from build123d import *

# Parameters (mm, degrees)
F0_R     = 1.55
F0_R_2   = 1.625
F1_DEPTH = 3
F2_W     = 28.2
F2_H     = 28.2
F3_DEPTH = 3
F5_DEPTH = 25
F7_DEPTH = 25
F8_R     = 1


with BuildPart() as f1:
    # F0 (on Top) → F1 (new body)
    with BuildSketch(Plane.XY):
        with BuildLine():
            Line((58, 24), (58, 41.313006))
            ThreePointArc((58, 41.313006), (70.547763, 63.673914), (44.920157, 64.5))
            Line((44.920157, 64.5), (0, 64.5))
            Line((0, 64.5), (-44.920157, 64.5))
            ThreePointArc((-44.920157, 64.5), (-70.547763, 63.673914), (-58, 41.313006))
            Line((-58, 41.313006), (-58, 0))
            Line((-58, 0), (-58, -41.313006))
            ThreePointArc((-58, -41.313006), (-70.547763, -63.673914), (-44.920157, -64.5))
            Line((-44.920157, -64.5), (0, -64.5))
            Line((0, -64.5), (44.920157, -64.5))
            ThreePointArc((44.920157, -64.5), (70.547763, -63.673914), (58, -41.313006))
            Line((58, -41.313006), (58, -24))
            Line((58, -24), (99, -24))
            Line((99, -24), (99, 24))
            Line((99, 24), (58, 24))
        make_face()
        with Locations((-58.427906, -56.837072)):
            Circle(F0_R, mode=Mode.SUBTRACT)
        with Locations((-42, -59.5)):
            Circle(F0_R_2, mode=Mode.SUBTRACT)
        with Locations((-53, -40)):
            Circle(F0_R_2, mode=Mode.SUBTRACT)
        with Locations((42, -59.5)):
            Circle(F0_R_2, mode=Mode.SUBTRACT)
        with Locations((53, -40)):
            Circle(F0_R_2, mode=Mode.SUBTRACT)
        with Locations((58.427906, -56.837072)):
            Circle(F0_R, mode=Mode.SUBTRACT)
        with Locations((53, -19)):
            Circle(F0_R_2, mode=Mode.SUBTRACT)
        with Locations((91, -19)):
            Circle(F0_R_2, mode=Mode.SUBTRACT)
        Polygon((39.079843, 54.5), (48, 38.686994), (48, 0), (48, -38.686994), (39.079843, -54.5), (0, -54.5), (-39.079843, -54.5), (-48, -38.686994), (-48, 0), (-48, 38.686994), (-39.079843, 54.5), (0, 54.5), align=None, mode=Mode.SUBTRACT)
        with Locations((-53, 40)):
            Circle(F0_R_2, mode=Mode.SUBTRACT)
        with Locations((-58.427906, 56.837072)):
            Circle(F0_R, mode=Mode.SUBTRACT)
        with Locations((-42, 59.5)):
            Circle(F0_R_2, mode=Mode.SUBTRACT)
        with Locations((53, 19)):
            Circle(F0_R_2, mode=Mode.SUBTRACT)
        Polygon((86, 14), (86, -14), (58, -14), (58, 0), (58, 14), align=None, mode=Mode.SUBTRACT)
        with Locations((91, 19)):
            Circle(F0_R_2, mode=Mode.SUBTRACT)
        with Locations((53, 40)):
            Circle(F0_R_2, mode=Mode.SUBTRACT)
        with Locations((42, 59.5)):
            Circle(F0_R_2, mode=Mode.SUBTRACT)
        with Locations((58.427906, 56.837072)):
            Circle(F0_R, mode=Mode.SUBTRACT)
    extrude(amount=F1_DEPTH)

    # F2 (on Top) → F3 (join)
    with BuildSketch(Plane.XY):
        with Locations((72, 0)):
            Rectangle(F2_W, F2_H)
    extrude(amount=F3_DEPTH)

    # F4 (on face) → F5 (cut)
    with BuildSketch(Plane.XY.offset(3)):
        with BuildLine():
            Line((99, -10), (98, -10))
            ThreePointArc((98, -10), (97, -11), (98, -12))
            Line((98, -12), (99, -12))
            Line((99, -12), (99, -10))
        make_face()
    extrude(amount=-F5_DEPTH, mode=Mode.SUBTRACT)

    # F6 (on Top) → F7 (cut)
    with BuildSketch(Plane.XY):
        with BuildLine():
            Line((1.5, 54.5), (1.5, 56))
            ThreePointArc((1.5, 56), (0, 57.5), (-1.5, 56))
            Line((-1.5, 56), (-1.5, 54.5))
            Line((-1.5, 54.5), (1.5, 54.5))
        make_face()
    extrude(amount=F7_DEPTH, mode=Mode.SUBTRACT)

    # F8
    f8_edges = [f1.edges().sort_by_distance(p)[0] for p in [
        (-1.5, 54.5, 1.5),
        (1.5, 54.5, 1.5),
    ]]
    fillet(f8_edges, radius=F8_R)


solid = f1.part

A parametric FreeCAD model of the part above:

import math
import FreeCAD as App
import Part
import Sketcher


def edges_at(feature, points):
    """Names of the edges that pass closest to the given points."""
    edges = feature.Shape.Edges
    near = lambda p: min(range(len(edges)), key=lambda i: edges[i].distToShape(Part.Vertex(*p))[0])
    return sorted({f"Edge{near(p) + 1}" for p in points})


def add_polygon(sketch, points):
    """Adds a closed chain of lines whose ends are joined by coincident constraints."""
    first, n = sketch.GeometryCount, len(points)
    for a, b in zip(points, points[1:] + points[:1]):
        sketch.addGeometry(Part.LineSegment(App.Vector(*a, 0), App.Vector(*b, 0)), False)
    for i in range(n):
        sketch.addConstraint(Sketcher.Constraint("Coincident", first + i, 2, first + (i + 1) % n, 1))

doc = App.newDocument("Part")
body = doc.addObject("PartDesign::Body", "Body")

# Sketch on XY plane
sketch1 = body.newObject("Sketcher::SketchObject", "Sketch")
sketch1.AttachmentSupport = (doc.getObject("XY_Plane"), [""])
sketch1.MapMode = "FlatFace"
sketch1.addGeometry(Part.LineSegment(App.Vector(58, 24, 0), App.Vector(58, 41.3, 0)), False)  # 0
sketch1.addGeometry(Part.ArcOfCircle(Part.Circle(App.Vector(57.5, 56.3, 0), App.Vector(0, 0, 1), 15), math.radians(-88), math.radians(147)), False)  # 1
sketch1.addGeometry(Part.LineSegment(App.Vector(44.9, 64.5, 0), App.Vector(-44.9, 64.5, 0)), False)  # 2
sketch1.addGeometry(Part.ArcOfCircle(Part.Circle(App.Vector(-57.5, 56.3, 0), App.Vector(0, 0, 1), 15), math.radians(33), math.radians(268)), False)  # 3
sketch1.addGeometry(Part.LineSegment(App.Vector(-58, 41.3, 0), App.Vector(-58, -41.3, 0)), False)  # 4
sketch1.addGeometry(Part.ArcOfCircle(Part.Circle(App.Vector(-57.5, -56.3, 0), App.Vector(0, 0, 1), 15), math.radians(92), math.radians(327)), False)  # 5
sketch1.addGeometry(Part.LineSegment(App.Vector(-44.9, -64.5, 0), App.Vector(44.9, -64.5, 0)), False)  # 6
sketch1.addGeometry(Part.ArcOfCircle(Part.Circle(App.Vector(57.5, -56.3, 0), App.Vector(0, 0, 1), 15), math.radians(-147), math.radians(88)), False)  # 7
sketch1.addGeometry(Part.LineSegment(App.Vector(58, -41.3, 0), App.Vector(58, -24, 0)), False)  # 8
sketch1.addGeometry(Part.LineSegment(App.Vector(58, -24, 0), App.Vector(99, -24, 0)), False)  # 9
sketch1.addGeometry(Part.LineSegment(App.Vector(99, -24, 0), App.Vector(99, 24, 0)), False)  # 10
sketch1.addGeometry(Part.LineSegment(App.Vector(99, 24, 0), App.Vector(58, 24, 0)), False)  # 11
sketch1.addGeometry(Part.Circle(App.Vector(-58.4, -56.8, 0), App.Vector(0, 0, 1), 1.6), False)  # 12
sketch1.addGeometry(Part.Circle(App.Vector(-42, -59.5, 0), App.Vector(0, 0, 1), 1.6), False)  # 13
sketch1.addGeometry(Part.Circle(App.Vector(-53, -40, 0), App.Vector(0, 0, 1), 1.6), False)  # 14
sketch1.addGeometry(Part.Circle(App.Vector(42, -59.5, 0), App.Vector(0, 0, 1), 1.6), False)  # 15
sketch1.addGeometry(Part.Circle(App.Vector(53, -40, 0), App.Vector(0, 0, 1), 1.6), False)  # 16
sketch1.addGeometry(Part.Circle(App.Vector(58.4, -56.8, 0), App.Vector(0, 0, 1), 1.6), False)  # 17
sketch1.addGeometry(Part.Circle(App.Vector(53, -19, 0), App.Vector(0, 0, 1), 1.6), False)  # 18
sketch1.addGeometry(Part.Circle(App.Vector(91, -19, 0), App.Vector(0, 0, 1), 1.6), False)  # 19
add_polygon(sketch1, [(-39.1, 54.5), (39.1, 54.5), (48, 38.7), (48, -38.7), (39.1, -54.5), (-39.1, -54.5), (-48, -38.7), (-48, 38.7)])  # lines 20-27
sketch1.addGeometry(Part.Circle(App.Vector(-53, 40, 0), App.Vector(0, 0, 1), 1.6), False)  # 28
sketch1.addGeometry(Part.Circle(App.Vector(-58.4, 56.8, 0), App.Vector(0, 0, 1), 1.6), False)  # 29
sketch1.addGeometry(Part.Circle(App.Vector(-42, 59.5, 0), App.Vector(0, 0, 1), 1.6), False)  # 30
sketch1.addGeometry(Part.Circle(App.Vector(53, 19, 0), App.Vector(0, 0, 1), 1.6), False)  # 31
add_polygon(sketch1, [(58, 14), (86, 14), (86, -14), (58, -14)])  # lines 32-35
sketch1.addGeometry(Part.Circle(App.Vector(91, 19, 0), App.Vector(0, 0, 1), 1.6), False)  # 36
sketch1.addGeometry(Part.Circle(App.Vector(53, 40, 0), App.Vector(0, 0, 1), 1.6), False)  # 37
sketch1.addGeometry(Part.Circle(App.Vector(42, 59.5, 0), App.Vector(0, 0, 1), 1.6), False)  # 38
sketch1.addGeometry(Part.Circle(App.Vector(58.4, 56.8, 0), App.Vector(0, 0, 1), 1.6), False)  # 39
sketch1.addConstraint([
    Sketcher.Constraint("Coincident", 0, 2, 1, 1),
    Sketcher.Constraint("Coincident", 1, 2, 2, 1),
    Sketcher.Constraint("Coincident", 2, 2, 3, 1),
    Sketcher.Constraint("Coincident", 3, 2, 4, 1),
    Sketcher.Constraint("Coincident", 4, 2, 5, 1),
    Sketcher.Constraint("Coincident", 5, 2, 6, 1),
    Sketcher.Constraint("Coincident", 6, 2, 7, 1),
    Sketcher.Constraint("Coincident", 7, 2, 8, 1),
    Sketcher.Constraint("Coincident", 8, 2, 9, 1),
    Sketcher.Constraint("Coincident", 9, 2, 10, 1),
    Sketcher.Constraint("Coincident", 10, 2, 11, 1),
    Sketcher.Constraint("Coincident", 11, 2, 0, 1),
    Sketcher.Constraint("Vertical", 0),
    Sketcher.Constraint("Horizontal", 2),
    Sketcher.Constraint("Vertical", 4),
    Sketcher.Constraint("Horizontal", 6),
    Sketcher.Constraint("Vertical", 8),
    Sketcher.Constraint("Horizontal", 9),
    Sketcher.Constraint("Vertical", 10),
    Sketcher.Constraint("Horizontal", 11),
    Sketcher.Constraint("Horizontal", 20),
    Sketcher.Constraint("Vertical", 22),
    Sketcher.Constraint("Horizontal", 24),
    Sketcher.Constraint("Vertical", 26),
    Sketcher.Constraint("Horizontal", 32),
    Sketcher.Constraint("Vertical", 33),
    Sketcher.Constraint("Horizontal", 34),
    Sketcher.Constraint("Vertical", 35),
    Sketcher.Constraint("Equal", 1, 3),
    Sketcher.Constraint("Equal", 3, 5),
    Sketcher.Constraint("Equal", 5, 7),
    Sketcher.Constraint("Equal", 13, 14),
    Sketcher.Constraint("Equal", 14, 15),
    Sketcher.Constraint("Equal", 15, 16),
    Sketcher.Constraint("Equal", 12, 17),
    Sketcher.Constraint("Equal", 16, 18),
    Sketcher.Constraint("Equal", 18, 19),
    Sketcher.Constraint("Equal", 19, 28),
    Sketcher.Constraint("Equal", 17, 29),
    Sketcher.Constraint("Equal", 28, 30),
    Sketcher.Constraint("Equal", 30, 31),
    Sketcher.Constraint("Equal", 31, 36),
    Sketcher.Constraint("Equal", 36, 37),
    Sketcher.Constraint("Equal", 37, 38),
    Sketcher.Constraint("Equal", 29, 39),
    Sketcher.Constraint("Symmetric", 1, 3, 5, 3, -1, 1),
    Sketcher.Constraint("Symmetric", 3, 3, 7, 3, -1, 1),
    Sketcher.Constraint("Symmetric", 16, 3, 28, 3, -1, 1),
    Sketcher.Constraint("Symmetric", 17, 3, 29, 3, -1, 1),
    Sketcher.Constraint("Symmetric", 15, 3, 30, 3, -1, 1),
    Sketcher.Constraint("Symmetric", 14, 3, 37, 3, -1, 1),
    Sketcher.Constraint("Symmetric", 13, 3, 38, 3, -1, 1),
    Sketcher.Constraint("Symmetric", 12, 3, 39, 3, -1, 1),
    Sketcher.Constraint("Symmetric", 20, 2, 24, 2, -1, 1),
    Sketcher.Constraint("Symmetric", 21, 2, 25, 2, -1, 1),
    Sketcher.Constraint("Symmetric", 1, 3, 3, 3, -2),
    Sketcher.Constraint("Symmetric", 13, 3, 15, 3, -2),
    Sketcher.Constraint("Symmetric", 14, 3, 16, 3, -2),
    Sketcher.Constraint("Symmetric", 12, 3, 17, 3, -2),
    Sketcher.Constraint("Symmetric", 18, 3, 31, 3, -1),
    Sketcher.Constraint("Symmetric", 19, 3, 36, 3, -1),
    Sketcher.Constraint("Symmetric", 8, 2, 11, 2, -1),
    Sketcher.Constraint("Parallel", 23, 27),
    Sketcher.Constraint("Horizontal", 18, 3, 19, 3),
    Sketcher.Constraint("Horizontal", 0, 2, 3, 2),
    Sketcher.Constraint("Horizontal", 22, 2, 25, 2),
    Sketcher.Constraint("Horizontal", 21, 2, 26, 2),
    Sketcher.Constraint("Vertical", 16, 3, 18, 3),
    Sketcher.Constraint("Vertical", 2, 2, 5, 2),
    Sketcher.Constraint("Vertical", 20, 2, 23, 2),
    Sketcher.Constraint("Vertical", 11, 2, 34, 2),
    Sketcher.Constraint("Equal", 34, 33),
    Sketcher.Constraint("Radius", 1, 15.0),
    Sketcher.Constraint("Diameter", 12, 3.1),
    Sketcher.Constraint("Diameter", 13, 3.25),
    Sketcher.Constraint("DistanceX", 9, 1, 9, 2, 41.0),
    Sketcher.Constraint("DistanceX", 32, 1, 32, 2, 28.0),
    Sketcher.Constraint("DistanceY", 10, 1, 10, 2, 48.0),
    Sketcher.Constraint("DistanceX", 13, 3, -1, 1, 42.0),
    Sketcher.Constraint("DistanceX", 14, 3, -1, 1, 53.0),
    Sketcher.Constraint("DistanceY", 14, 3, -1, 1, 40.0),
    Sketcher.Constraint("DistanceY", 18, 3, -1, 1, 19.0),
    Sketcher.Constraint("DistanceX", -1, 1, 19, 3, 91.0),
    Sketcher.Constraint("DistanceX", -1, 1, 0, 2, 58.0),
    Sketcher.Constraint("DistanceX", -1, 1, 21, 2, 48.0),
    Sketcher.Constraint("DistanceY", -1, 1, 32, 2, 14.0),
    Sketcher.Constraint("DistanceY", 38, 3, 1, 2, 5.0),
    Sketcher.Constraint("DistanceY", 20, 2, 38, 3, 5.0),
    Sketcher.Constraint("DistanceY", 13, 3, -1, 1, 59.5),
    Sketcher.Constraint("Distance", 21, 18.15545),
    Sketcher.Constraint("DistanceX", 2, 2, 2, 1, 89.840314),
    Sketcher.Constraint("DistanceX", 20, 1, 20, 2, 78.159686),
    Sketcher.Constraint("DistanceY", 0, 1, 0, 2, 17.313006),
    Sketcher.Constraint("DistanceX", 12, 3, 5, 3, 0.94482),
    Sketcher.Constraint("DistanceY", 12, 3, 3, 3, 113.141169),
])
pad1 = body.newObject("PartDesign::Pad", "Pad")
pad1.Profile = sketch1
pad1.Length = 3

# Sketch on XY plane
sketch2 = body.newObject("Sketcher::SketchObject", "Sketch001")
sketch2.AttachmentSupport = (doc.getObject("XY_Plane"), [""])
sketch2.MapMode = "FlatFace"
add_polygon(sketch2, [(58, 14), (58, -14), (86, -14), (86, 14)])  # lines 0-3
sketch2.addConstraint([
    Sketcher.Constraint("Vertical", 0),
    Sketcher.Constraint("Horizontal", 1),
    Sketcher.Constraint("Vertical", 2),
    Sketcher.Constraint("Horizontal", 3),
    Sketcher.Constraint("Equal", 3, 0),
    Sketcher.Constraint("DistanceX", 1, 1, 1, 2, 28.2),
    Sketcher.Constraint("DistanceX", -1, 1, 0, 2, 57.9),
    Sketcher.Constraint("DistanceY", 0, 2, -1, 1, 14.1),
])
pad2 = body.newObject("PartDesign::Pad", "Pad001")
pad2.Profile = sketch2
pad2.Length = 3

# Sketch on XY plane
sketch3 = body.newObject("Sketcher::SketchObject", "Sketch002")
sketch3.AttachmentSupport = (doc.getObject("XY_Plane"), [""])
sketch3.MapMode = "FlatFace"
sketch3.AttachmentOffset = App.Placement(App.Vector(0, 0, 3), App.Rotation())
sketch3.addGeometry([
    Part.LineSegment(App.Vector(99, -10, 0), App.Vector(98, -10, 0)),
    Part.ArcOfCircle(Part.Circle(App.Vector(98, -11, 0), App.Vector(0, 0, 1), 1), math.radians(90), math.radians(270)),
    Part.LineSegment(App.Vector(98, -12, 0), App.Vector(99, -12, 0)),
    Part.LineSegment(App.Vector(99, -12, 0), App.Vector(99, -10, 0)),
], False)
sketch3.addConstraint([
    Sketcher.Constraint("Tangent", 0, 2, 1, 1),
    Sketcher.Constraint("Tangent", 1, 2, 2, 1),
    Sketcher.Constraint("Coincident", 2, 2, 3, 1),
    Sketcher.Constraint("Coincident", 3, 2, 0, 1),
    Sketcher.Constraint("Horizontal", 0),
    Sketcher.Constraint("Horizontal", 2),
    Sketcher.Constraint("Vertical", 3),
    Sketcher.Constraint("Radius", 1, 1.0),
    Sketcher.Constraint("DistanceX", 0, 2, 0, 1, 1.0),
    Sketcher.Constraint("DistanceX", -1, 1, 1, 3, 98.0),
    Sketcher.Constraint("DistanceY", 1, 3, -1, 1, 11.0),
])
pocket1 = body.newObject("PartDesign::Pocket", "Pocket")
pocket1.Profile = sketch3
pocket1.Length = 25

# Sketch on XY plane
sketch4 = body.newObject("Sketcher::SketchObject", "Sketch003")
sketch4.AttachmentSupport = (doc.getObject("XY_Plane"), [""])
sketch4.MapMode = "FlatFace"
sketch4.addGeometry([
    Part.LineSegment(App.Vector(1.5, 54.5, 0), App.Vector(1.5, 56, 0)),
    Part.ArcOfCircle(Part.Circle(App.Vector(0, 56, 0), App.Vector(0, 0, 1), 1.5), math.radians(0), math.radians(180)),
    Part.LineSegment(App.Vector(-1.5, 56, 0), App.Vector(-1.5, 54.5, 0)),
    Part.LineSegment(App.Vector(-1.5, 54.5, 0), App.Vector(1.5, 54.5, 0)),
], False)
sketch4.addConstraint([
    Sketcher.Constraint("Tangent", 0, 2, 1, 1),
    Sketcher.Constraint("Tangent", 1, 2, 2, 1),
    Sketcher.Constraint("Coincident", 2, 2, 3, 1),
    Sketcher.Constraint("Coincident", 3, 2, 0, 1),
    Sketcher.Constraint("Vertical", 0),
    Sketcher.Constraint("Vertical", 2),
    Sketcher.Constraint("Horizontal", 3),
    Sketcher.Constraint("PointOnObject", 1, 3, -2),
    Sketcher.Constraint("Radius", 1, 1.5),
    Sketcher.Constraint("DistanceY", 0, 1, 0, 2, 1.5),
    Sketcher.Constraint("DistanceY", -1, 1, 1, 3, 56.0),
])
pocket2 = body.newObject("PartDesign::Pocket", "Pocket001")
pocket2.Profile = sketch4
pocket2.Length = 25
pocket2.Reversed = True
doc.recompute()

fillet = body.newObject("PartDesign::Fillet", "Fillet")
fillet.Base = (pocket2, edges_at(pocket2, [(-1.5, 54.5, 1.5), (1.5, 54.5, 1.5)]))
fillet.Radius = 1

doc.recompute()
